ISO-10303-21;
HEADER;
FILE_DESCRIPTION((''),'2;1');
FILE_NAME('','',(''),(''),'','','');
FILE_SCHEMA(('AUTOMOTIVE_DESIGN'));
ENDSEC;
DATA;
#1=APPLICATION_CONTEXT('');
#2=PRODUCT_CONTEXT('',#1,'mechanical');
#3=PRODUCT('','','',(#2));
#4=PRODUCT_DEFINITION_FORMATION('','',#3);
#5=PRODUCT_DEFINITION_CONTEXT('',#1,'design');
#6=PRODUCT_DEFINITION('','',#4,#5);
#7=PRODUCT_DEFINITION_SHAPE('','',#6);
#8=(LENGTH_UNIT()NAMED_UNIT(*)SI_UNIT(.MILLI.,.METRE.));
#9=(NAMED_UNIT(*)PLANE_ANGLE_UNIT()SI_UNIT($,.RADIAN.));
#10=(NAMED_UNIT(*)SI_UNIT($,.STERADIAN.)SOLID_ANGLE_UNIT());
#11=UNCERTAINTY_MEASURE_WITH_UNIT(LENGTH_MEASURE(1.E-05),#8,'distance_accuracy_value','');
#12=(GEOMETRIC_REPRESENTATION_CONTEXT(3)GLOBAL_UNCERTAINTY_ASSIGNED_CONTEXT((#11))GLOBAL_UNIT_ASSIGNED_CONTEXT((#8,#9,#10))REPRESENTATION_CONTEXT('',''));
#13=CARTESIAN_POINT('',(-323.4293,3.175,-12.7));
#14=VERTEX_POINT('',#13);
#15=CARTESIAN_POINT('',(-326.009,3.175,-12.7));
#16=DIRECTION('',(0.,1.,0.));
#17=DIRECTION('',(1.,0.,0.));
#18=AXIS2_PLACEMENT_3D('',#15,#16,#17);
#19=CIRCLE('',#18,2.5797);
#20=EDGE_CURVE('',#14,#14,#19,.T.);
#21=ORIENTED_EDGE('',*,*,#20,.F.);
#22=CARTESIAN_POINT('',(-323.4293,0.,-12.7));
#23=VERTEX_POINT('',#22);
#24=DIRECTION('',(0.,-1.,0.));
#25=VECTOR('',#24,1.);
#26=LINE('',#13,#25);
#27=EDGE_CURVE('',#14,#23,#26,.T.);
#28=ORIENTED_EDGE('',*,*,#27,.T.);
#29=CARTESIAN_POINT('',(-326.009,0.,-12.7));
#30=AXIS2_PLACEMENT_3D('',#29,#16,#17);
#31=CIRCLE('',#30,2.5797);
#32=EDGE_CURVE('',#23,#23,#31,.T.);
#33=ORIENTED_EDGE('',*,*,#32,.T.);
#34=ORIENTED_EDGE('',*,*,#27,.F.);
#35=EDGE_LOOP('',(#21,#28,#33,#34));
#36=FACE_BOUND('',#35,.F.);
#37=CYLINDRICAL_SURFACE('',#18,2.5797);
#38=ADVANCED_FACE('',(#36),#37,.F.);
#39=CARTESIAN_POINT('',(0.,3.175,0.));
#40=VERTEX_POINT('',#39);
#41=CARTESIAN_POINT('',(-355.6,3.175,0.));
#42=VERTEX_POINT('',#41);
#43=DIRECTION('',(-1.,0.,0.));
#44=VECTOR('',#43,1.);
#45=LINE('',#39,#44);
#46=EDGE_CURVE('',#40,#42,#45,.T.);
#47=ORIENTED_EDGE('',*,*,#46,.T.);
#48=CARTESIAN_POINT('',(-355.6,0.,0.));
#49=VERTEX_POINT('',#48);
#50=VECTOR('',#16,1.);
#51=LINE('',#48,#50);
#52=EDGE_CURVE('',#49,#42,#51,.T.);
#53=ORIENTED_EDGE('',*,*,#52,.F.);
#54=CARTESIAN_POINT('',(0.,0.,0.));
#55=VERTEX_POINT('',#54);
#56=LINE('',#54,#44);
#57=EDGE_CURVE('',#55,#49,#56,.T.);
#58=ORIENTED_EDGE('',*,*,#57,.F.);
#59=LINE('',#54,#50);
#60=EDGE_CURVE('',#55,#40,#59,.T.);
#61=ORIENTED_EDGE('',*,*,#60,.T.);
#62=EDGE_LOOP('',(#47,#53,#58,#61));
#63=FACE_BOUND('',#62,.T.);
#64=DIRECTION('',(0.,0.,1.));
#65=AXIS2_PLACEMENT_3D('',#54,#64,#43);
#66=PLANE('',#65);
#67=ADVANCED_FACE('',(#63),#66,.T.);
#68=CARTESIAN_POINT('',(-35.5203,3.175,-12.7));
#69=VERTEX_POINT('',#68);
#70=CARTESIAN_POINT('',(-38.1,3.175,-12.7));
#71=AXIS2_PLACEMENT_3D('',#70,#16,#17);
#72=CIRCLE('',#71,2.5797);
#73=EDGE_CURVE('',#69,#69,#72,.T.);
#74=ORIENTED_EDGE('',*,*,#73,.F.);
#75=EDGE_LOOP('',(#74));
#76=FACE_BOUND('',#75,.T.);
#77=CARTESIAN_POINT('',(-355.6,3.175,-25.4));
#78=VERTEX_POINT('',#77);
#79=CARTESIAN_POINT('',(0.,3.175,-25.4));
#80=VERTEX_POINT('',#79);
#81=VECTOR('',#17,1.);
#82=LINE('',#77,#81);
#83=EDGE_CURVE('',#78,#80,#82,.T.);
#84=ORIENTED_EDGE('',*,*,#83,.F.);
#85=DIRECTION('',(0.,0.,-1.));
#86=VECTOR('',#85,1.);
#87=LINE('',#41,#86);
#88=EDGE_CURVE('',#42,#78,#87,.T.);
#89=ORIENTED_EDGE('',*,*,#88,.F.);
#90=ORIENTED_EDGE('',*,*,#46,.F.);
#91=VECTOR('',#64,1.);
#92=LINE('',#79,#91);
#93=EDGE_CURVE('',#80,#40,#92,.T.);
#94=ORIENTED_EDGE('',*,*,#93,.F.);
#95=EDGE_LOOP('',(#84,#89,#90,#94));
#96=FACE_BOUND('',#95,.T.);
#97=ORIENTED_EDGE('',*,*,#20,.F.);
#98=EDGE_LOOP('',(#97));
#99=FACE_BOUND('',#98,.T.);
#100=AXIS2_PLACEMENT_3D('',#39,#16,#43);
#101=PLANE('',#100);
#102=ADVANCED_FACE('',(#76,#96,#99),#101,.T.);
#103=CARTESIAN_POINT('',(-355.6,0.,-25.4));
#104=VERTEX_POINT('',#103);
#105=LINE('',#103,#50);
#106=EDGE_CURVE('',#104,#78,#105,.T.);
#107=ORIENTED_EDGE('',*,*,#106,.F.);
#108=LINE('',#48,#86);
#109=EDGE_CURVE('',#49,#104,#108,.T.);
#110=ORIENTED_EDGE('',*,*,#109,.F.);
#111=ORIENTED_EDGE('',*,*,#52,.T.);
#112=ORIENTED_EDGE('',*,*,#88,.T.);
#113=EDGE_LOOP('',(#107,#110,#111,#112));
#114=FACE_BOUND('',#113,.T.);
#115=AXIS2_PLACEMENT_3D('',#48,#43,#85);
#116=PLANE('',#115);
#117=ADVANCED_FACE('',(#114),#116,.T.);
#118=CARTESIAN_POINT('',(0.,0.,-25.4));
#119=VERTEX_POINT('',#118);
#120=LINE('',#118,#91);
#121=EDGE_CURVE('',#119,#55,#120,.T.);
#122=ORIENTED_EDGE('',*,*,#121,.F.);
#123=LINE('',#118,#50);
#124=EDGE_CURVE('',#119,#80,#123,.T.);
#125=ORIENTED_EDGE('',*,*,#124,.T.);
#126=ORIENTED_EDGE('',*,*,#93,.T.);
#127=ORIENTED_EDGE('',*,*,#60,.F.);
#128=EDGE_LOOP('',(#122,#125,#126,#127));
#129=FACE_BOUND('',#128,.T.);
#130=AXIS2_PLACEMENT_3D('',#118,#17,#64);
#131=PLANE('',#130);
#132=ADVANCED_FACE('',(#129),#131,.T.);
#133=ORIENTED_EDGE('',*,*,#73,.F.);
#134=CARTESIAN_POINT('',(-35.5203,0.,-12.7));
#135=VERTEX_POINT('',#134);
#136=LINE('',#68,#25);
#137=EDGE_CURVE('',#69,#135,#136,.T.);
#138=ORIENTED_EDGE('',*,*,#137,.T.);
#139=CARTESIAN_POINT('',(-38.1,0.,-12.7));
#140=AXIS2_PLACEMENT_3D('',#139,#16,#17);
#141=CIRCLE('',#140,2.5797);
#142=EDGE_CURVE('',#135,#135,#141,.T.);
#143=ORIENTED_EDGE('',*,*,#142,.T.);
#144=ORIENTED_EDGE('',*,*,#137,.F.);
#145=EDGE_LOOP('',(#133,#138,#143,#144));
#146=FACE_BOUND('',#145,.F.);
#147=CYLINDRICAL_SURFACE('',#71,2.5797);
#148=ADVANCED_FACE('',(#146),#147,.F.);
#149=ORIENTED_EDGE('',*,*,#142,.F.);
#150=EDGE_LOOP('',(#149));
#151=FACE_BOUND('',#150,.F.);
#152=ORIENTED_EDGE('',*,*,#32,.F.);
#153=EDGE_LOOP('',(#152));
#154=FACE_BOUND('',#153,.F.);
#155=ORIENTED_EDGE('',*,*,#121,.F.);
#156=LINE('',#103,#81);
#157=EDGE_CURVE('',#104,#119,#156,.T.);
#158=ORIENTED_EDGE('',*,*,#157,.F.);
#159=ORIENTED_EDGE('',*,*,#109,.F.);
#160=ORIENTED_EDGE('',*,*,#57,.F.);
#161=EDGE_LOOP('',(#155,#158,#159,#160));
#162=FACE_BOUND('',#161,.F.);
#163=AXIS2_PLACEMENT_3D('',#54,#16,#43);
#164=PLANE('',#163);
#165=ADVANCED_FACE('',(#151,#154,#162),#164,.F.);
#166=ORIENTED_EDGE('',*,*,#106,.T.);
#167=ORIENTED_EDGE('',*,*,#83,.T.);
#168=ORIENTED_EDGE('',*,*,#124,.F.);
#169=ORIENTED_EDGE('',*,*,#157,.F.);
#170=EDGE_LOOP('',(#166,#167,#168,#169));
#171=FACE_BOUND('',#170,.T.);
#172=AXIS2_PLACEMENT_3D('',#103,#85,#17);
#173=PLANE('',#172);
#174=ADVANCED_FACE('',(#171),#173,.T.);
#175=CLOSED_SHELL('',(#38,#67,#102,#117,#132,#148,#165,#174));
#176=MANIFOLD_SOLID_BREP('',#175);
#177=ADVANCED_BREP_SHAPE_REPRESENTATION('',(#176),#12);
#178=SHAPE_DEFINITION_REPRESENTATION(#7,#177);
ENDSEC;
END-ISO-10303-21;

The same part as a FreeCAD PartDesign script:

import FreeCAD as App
import Part
import Sketcher

V = App.Vector
Q = App.Units.Quantity

doc = App.newDocument("Part")
body = doc.addObject("PartDesign::Body", "Body")

sketch1 = doc.addObject("Sketcher::SketchObject", "Sketch")
body.addObject(sketch1)
sketch1.AttachmentSupport = (doc.XZ_Plane, [""])
sketch1.MapMode = "FlatFace"
sketch1.addGeometry(Part.LineSegment(V(-355.6, 0, 0), V(0, 0, 0)), False)
sketch1.addGeometry(Part.LineSegment(V(0, 0, 0), V(0, -25.4, 0)), False)
sketch1.addGeometry(Part.LineSegment(V(0, -25.4, 0), V(-355.6, -25.4, 0)), False)
sketch1.addGeometry(Part.LineSegment(V(-355.6, -25.4, 0), V(-355.6, 0, 0)), False)
sketch1.addConstraint(Sketcher.Constraint("Coincident", 0, 2, 1, 1))
sketch1.addConstraint(Sketcher.Constraint("Coincident", 1, 2, 2, 1))
sketch1.addConstraint(Sketcher.Constraint("Coincident", 2, 2, 3, 1))
sketch1.addConstraint(Sketcher.Constraint("Coincident", 3, 2, 0, 1))
sketch1.addConstraint(Sketcher.Constraint("Horizontal", 0))
sketch1.addConstraint(Sketcher.Constraint("Vertical", 1))
sketch1.addConstraint(Sketcher.Constraint("Horizontal", 2))
sketch1.addConstraint(Sketcher.Constraint("Vertical", 3))
sketch1.addConstraint(Sketcher.Constraint("Coincident", 0, 2, -1, 1))
sketch1.addConstraint(Sketcher.Constraint("DistanceX", 0, 1, 0, 2, Q("14 in")))
sketch1.addConstraint(Sketcher.Constraint("DistanceY", 1, 2, 1, 1, Q("1 in")))
pad1 = doc.addObject("PartDesign::Pad", "Pad")
body.addObject(pad1)
pad1.Profile = sketch1
pad1.Length = Q("0.125 in")
pad1.Reversed = True

sketch2 = doc.addObject("Sketcher::SketchObject", "Sketch001")
body.addObject(sketch2)
sketch2.AttachmentSupport = (doc.XZ_Plane, [""])
sketch2.MapMode = "FlatFace"
sketch2.AttachmentOffset = App.Placement(V(0, 0, -0.125 * 25.4), App.Rotation())
sketch2.addGeometry(Part.Circle(V(-38.1, -12.7, 0), V(0, 0, 1), 2.5797), False)
sketch2.addGeometry(Part.Circle(V(-326.009, -12.7, 0), V(0, 0, 1), 2.5797), False)
sketch2.addConstraint(Sketcher.Constraint("Equal", 0, 1))
sketch2.addConstraint(Sketcher.Constraint("Horizontal", 0, 3, 1, 3))
sketch2.addConstraint(Sketcher.Constraint("Diameter", 0, Q("0.203126 in")))
sketch2.addConstraint(Sketcher.Constraint("DistanceX", 0, 3, -1, 1, Q("1.5 in")))
sketch2.addConstraint(Sketcher.Constraint("DistanceX", 1, 3, 0, 3, Q("11.335 in")))
sketch2.addConstraint(Sketcher.Constraint("DistanceY", 0, 3, -1, 1, Q("0.5 in")))
pocket1 = doc.addObject("PartDesign::Pocket", "Pocket")
body.addObject(pocket1)
pocket1.Profile = sketch2
pocket1.Length = Q("0.125 in")
pocket1.Reversed = True

doc.recompute()
